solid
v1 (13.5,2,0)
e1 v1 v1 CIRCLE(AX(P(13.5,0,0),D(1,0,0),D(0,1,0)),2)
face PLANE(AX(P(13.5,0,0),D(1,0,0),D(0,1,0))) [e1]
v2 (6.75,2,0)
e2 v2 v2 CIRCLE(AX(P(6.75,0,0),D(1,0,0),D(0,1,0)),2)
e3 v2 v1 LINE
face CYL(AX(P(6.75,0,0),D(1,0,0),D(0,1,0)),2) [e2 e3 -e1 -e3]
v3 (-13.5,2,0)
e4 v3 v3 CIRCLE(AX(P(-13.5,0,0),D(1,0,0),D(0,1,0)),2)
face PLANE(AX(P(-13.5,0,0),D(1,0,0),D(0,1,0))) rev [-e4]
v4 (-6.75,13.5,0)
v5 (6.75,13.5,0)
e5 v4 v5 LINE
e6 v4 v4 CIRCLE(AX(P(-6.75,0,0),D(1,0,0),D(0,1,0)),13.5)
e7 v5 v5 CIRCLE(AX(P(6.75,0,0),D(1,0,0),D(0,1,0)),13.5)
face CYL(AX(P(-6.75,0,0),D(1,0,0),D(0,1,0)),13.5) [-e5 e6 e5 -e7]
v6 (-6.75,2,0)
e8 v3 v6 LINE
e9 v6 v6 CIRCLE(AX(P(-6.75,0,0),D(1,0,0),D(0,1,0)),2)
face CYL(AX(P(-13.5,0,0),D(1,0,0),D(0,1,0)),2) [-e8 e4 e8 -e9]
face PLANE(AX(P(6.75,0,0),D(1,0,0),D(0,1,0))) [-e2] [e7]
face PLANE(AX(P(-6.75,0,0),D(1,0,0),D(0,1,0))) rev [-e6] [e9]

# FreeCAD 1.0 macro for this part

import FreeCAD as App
import Part
import Sketcher

V = App.Vector
Q = App.Units.Quantity


def add_polygon(sketch, points):
    """Adds a closed chain of lines whose ends are joined by coincident constraints."""
    first, n = sketch.GeometryCount, len(points)
    for a, b in zip(points, points[1:] + points[:1]):
        sketch.addGeometry(Part.LineSegment(App.Vector(*a, 0), App.Vector(*b, 0)), False)
    for i in range(n):
        sketch.addConstraint(Sketcher.Constraint("Coincident", first + i, 2, first + (i + 1) % n, 1))

doc = App.newDocument("Part")
body = doc.addObject("PartDesign::Body", "Body")

sketch1 = doc.addObject("Sketcher::SketchObject", "Sketch")
body.addObject(sketch1)
sketch1.AttachmentSupport = (doc.XY_Plane, [""])
sketch1.MapMode = "FlatFace"
add_polygon(sketch1, [(-13.5, 0), (13.5, 0), (13.5, 2), (6.75, 2), (6.75, 13.5), (-6.75, 13.5), (-6.75, 2), (-13.5, 2)])
sketch1.addConstraint([
    Sketcher.Constraint("Horizontal", 0),
    Sketcher.Constraint("Vertical", 1),
    Sketcher.Constraint("Horizontal", 2),
    Sketcher.Constraint("Vertical", 3),
    Sketcher.Constraint("Horizontal", 4),
    Sketcher.Constraint("Vertical", 5),
    Sketcher.Constraint("Horizontal", 6),
    Sketcher.Constraint("Vertical", 7),
    Sketcher.Constraint("Symmetric", 0, 2, 7, 2, -1, 1),
    Sketcher.Constraint("Symmetric", 2, 2, 5, 2, -2),
    Sketcher.Constraint("DistanceX", 0, 1, 0, 2, Q("27 mm")),
    Sketcher.Constraint("DistanceY", 1, 1, 1, 2, Q("2 mm")),
    Sketcher.Constraint("DistanceX", 4, 2, 4, 1, Q("13.5 mm")),
    Sketcher.Constraint("DistanceY", 3, 1, 3, 2, Q("11.5 mm")),
])
revolution = doc.addObject("PartDesign::Revolution", "Revolution")
body.addObject(revolution)
revolution.Profile = sketch1
revolution.ReferenceAxis = (sketch1, ["H_Axis"])
revolution.Angle = 360

doc.recompute()
